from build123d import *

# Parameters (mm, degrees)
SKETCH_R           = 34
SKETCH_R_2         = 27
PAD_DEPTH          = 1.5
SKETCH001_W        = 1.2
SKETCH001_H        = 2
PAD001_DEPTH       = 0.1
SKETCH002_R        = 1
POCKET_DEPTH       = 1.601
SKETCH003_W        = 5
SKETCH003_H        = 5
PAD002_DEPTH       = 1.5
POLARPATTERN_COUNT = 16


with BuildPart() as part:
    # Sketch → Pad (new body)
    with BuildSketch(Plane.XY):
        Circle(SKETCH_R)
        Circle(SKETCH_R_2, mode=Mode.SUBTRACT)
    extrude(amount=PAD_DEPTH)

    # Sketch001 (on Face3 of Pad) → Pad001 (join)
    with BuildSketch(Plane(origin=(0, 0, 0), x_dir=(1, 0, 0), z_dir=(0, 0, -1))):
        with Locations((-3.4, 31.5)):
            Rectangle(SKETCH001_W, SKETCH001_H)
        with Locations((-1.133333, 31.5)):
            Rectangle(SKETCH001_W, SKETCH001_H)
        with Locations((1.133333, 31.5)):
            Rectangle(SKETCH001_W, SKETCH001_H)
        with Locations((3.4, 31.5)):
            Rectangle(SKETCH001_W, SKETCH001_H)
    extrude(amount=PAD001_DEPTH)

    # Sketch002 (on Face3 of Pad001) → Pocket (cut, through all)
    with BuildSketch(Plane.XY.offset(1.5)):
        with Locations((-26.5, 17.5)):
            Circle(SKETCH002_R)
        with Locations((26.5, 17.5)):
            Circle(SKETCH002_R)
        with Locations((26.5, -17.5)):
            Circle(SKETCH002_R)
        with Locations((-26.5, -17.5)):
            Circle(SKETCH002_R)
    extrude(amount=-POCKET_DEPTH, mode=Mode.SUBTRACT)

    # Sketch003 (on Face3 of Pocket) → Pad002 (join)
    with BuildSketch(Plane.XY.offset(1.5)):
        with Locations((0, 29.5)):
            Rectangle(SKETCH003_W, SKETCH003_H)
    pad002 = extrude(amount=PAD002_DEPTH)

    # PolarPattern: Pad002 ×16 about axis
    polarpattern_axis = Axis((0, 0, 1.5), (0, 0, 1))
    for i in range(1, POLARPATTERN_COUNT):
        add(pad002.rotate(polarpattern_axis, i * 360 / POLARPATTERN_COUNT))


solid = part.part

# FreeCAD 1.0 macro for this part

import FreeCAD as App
import Part
import Sketcher

V = App.Vector


def add_polygon(sketch, points):
    """Adds a closed chain of lines whose ends are joined by coincident constraints."""
    first, n = sketch.GeometryCount, len(points)
    for a, b in zip(points, points[1:] + points[:1]):
        sketch.addGeometry(Part.LineSegment(App.Vector(*a, 0), App.Vector(*b, 0)), False)
    for i in range(n):
        sketch.addConstraint(Sketcher.Constraint("Coincident", first + i, 2, first + (i + 1) % n, 1))

doc = App.newDocument("Part")
body = doc.addObject("PartDesign::Body", "Body")

# Sketch on XY plane
sketch1 = body.newObject("Sketcher::SketchObject", "Sketch")
sketch1.AttachmentSupport = (doc.getObject("XY_Plane"), [""])
sketch1.MapMode = "FlatFace"
sketch1.addGeometry([
    Part.Circle(V(0, 0, 0), V(0, 0, 1), 34),
    Part.Circle(V(0, 0, 0), V(0, 0, 1), 27),
], False)
sketch1.addConstraint([
    Sketcher.Constraint("Coincident", 0, 3, -1, 1),
    Sketcher.Constraint("Coincident", 1, 3, -1, 1),
    Sketcher.Constraint("Diameter", 0, 68.0),
    Sketcher.Constraint("Diameter", 1, 54.0),
])
pad1 = body.newObject("PartDesign::Pad", "Pad")
pad1.Profile = sketch1
pad1.Length = 1.5

# Sketch on XY plane
sketch2 = body.newObject("Sketcher::SketchObject", "Sketch001")
sketch2.AttachmentSupport = (doc.getObject("XY_Plane"), [""])
sketch2.MapMode = "FlatFace"
add_polygon(sketch2, [(-4, -32.5), (-4, -30.5), (-2.8, -30.5), (-2.8, -32.5)])  # lines 0-3
add_polygon(sketch2, [(-1.7, -32.5), (-1.7, -30.5), (-0.5, -30.5), (-0.5, -32.5)])  # lines 4-7
add_polygon(sketch2, [(0.5, -32.5), (0.5, -30.5), (1.7, -30.5), (1.7, -32.5)])  # lines 8-11
add_polygon(sketch2, [(2.8, -32.5), (2.8, -30.5), (4, -30.5), (4, -32.5)])  # lines 12-15
sketch2.addConstraint([
    Sketcher.Constraint("Vertical", 0),
    Sketcher.Constraint("Horizontal", 1),
    Sketcher.Constraint("Vertical", 2),
    Sketcher.Constraint("Horizontal", 3),
    Sketcher.Constraint("Vertical", 4),
    Sketcher.Constraint("Horizontal", 5),
    Sketcher.Constraint("Vertical", 6),
    Sketcher.Constraint("Horizontal", 7),
    Sketcher.Constraint("Vertical", 8),
    Sketcher.Constraint("Horizontal", 9),
    Sketcher.Constraint("Vertical", 10),
    Sketcher.Constraint("Horizontal", 11),
    Sketcher.Constraint("Vertical", 12),
    Sketcher.Constraint("Horizontal", 13),
    Sketcher.Constraint("Vertical", 14),
    Sketcher.Constraint("Horizontal", 15),
    Sketcher.Constraint("Symmetric", 5, 2, 8, 2, -2),
    Sketcher.Constraint("Symmetric", 7, 2, 10, 2, -2),
    Sketcher.Constraint("Symmetric", 1, 2, 12, 2, -2),
    Sketcher.Constraint("Symmetric", 3, 2, 14, 2, -2),
    Sketcher.Constraint("Horizontal", 1, 2, 4, 2),
    Sketcher.Constraint("Horizontal", 3, 2, 6, 2),
    Sketcher.Constraint("Equal", 3, 5),
    Sketcher.Constraint("DistanceY", 0, 1, 0, 2, 2.0),
    Sketcher.Constraint("DistanceX", 1, 1, 1, 2, 1.2),
    Sketcher.Constraint("DistanceX", 0, 2, -1, 1, 4.0),
    Sketcher.Constraint("DistanceY", 0, 2, -1, 1, 30.5),
    Sketcher.Constraint("DistanceX", 4, 2, -1, 1, 1.733333),
])
pad2 = body.newObject("PartDesign::Pad", "Pad001")
pad2.Profile = sketch2
pad2.Length = 0.1
pad2.Reversed = True

# Sketch on XY plane
sketch3 = body.newObject("Sketcher::SketchObject", "Sketch002")
sketch3.AttachmentSupport = (doc.getObject("XY_Plane"), [""])
sketch3.MapMode = "FlatFace"
sketch3.AttachmentOffset = App.Placement(V(0, 0, 1.5), App.Rotation())
sketch3.addGeometry([
    Part.Circle(V(-26.5, 17.5, 0), V(0, 0, 1), 1),
    Part.Circle(V(26.5, 17.5, 0), V(0, 0, 1), 1),
    Part.Circle(V(26.5, -17.5, 0), V(0, 0, 1), 1),
    Part.Circle(V(-26.5, -17.5, 0), V(0, 0, 1), 1),
], False)
sketch3.addConstraint([
    Sketcher.Constraint("Equal", 0, 1),
    Sketcher.Constraint("Equal", 1, 2),
    Sketcher.Constraint("Equal", 2, 3),
    Sketcher.Constraint("Symmetric", 0, 3, 2, 3, -1, 1),
    Sketcher.Constraint("Symmetric", 1, 3, 3, 3, -1, 1),
    Sketcher.Constraint("Symmetric", 0, 3, 1, 3, -2),
    Sketcher.Constraint("Diameter", 0, 2.0),
    Sketcher.Constraint("DistanceX", 0, 3, 1, 3, 53.0),
    Sketcher.Constraint("DistanceY", 2, 3, 1, 3, 35.0),
])
pocket1 = body.newObject("PartDesign::Pocket", "Pocket")
pocket1.Profile = sketch3
pocket1.Type = "ThroughAll"

# Sketch on XY plane
sketch4 = body.newObject("Sketcher::SketchObject", "Sketch003")
sketch4.AttachmentSupport = (doc.getObject("XY_Plane"), [""])
sketch4.MapMode = "FlatFace"
sketch4.AttachmentOffset = App.Placement(V(0, 0, 1.5), App.Rotation())
add_polygon(sketch4, [(-2, 32), (-2, 27), (2, 27), (2, 32)])  # lines 0-3
sketch4.addConstraint([
    Sketcher.Constraint("Vertical", 0),
    Sketcher.Constraint("Horizontal", 1),
    Sketcher.Constraint("Vertical", 2),
    Sketcher.Constraint("Horizontal", 3),
    Sketcher.Constraint("Equal", 3, 0),
    Sketcher.Constraint("DistanceX", 1, 1, 1, 2, 5.0),
    Sketcher.Constraint("DistanceY", -1, 1, 0, 2, 27.0),
    Sketcher.Constraint("DistanceX", 0, 2, -1, 1, 2.5),
])
pad3 = body.newObject("PartDesign::Pad", "Pad002")
pad3.Profile = sketch4
pad3.Length = 1.5
doc.recompute()

polarpattern = body.newObject("PartDesign::PolarPattern", "PolarPattern")
polarpattern.Originals = [pad3]
polarpattern.Axis = (doc.getObject("Z_Axis"), [""])
polarpattern.Angle = 360
polarpattern.Occurrences = 16
body.Tip = polarpattern

doc.recompute()
